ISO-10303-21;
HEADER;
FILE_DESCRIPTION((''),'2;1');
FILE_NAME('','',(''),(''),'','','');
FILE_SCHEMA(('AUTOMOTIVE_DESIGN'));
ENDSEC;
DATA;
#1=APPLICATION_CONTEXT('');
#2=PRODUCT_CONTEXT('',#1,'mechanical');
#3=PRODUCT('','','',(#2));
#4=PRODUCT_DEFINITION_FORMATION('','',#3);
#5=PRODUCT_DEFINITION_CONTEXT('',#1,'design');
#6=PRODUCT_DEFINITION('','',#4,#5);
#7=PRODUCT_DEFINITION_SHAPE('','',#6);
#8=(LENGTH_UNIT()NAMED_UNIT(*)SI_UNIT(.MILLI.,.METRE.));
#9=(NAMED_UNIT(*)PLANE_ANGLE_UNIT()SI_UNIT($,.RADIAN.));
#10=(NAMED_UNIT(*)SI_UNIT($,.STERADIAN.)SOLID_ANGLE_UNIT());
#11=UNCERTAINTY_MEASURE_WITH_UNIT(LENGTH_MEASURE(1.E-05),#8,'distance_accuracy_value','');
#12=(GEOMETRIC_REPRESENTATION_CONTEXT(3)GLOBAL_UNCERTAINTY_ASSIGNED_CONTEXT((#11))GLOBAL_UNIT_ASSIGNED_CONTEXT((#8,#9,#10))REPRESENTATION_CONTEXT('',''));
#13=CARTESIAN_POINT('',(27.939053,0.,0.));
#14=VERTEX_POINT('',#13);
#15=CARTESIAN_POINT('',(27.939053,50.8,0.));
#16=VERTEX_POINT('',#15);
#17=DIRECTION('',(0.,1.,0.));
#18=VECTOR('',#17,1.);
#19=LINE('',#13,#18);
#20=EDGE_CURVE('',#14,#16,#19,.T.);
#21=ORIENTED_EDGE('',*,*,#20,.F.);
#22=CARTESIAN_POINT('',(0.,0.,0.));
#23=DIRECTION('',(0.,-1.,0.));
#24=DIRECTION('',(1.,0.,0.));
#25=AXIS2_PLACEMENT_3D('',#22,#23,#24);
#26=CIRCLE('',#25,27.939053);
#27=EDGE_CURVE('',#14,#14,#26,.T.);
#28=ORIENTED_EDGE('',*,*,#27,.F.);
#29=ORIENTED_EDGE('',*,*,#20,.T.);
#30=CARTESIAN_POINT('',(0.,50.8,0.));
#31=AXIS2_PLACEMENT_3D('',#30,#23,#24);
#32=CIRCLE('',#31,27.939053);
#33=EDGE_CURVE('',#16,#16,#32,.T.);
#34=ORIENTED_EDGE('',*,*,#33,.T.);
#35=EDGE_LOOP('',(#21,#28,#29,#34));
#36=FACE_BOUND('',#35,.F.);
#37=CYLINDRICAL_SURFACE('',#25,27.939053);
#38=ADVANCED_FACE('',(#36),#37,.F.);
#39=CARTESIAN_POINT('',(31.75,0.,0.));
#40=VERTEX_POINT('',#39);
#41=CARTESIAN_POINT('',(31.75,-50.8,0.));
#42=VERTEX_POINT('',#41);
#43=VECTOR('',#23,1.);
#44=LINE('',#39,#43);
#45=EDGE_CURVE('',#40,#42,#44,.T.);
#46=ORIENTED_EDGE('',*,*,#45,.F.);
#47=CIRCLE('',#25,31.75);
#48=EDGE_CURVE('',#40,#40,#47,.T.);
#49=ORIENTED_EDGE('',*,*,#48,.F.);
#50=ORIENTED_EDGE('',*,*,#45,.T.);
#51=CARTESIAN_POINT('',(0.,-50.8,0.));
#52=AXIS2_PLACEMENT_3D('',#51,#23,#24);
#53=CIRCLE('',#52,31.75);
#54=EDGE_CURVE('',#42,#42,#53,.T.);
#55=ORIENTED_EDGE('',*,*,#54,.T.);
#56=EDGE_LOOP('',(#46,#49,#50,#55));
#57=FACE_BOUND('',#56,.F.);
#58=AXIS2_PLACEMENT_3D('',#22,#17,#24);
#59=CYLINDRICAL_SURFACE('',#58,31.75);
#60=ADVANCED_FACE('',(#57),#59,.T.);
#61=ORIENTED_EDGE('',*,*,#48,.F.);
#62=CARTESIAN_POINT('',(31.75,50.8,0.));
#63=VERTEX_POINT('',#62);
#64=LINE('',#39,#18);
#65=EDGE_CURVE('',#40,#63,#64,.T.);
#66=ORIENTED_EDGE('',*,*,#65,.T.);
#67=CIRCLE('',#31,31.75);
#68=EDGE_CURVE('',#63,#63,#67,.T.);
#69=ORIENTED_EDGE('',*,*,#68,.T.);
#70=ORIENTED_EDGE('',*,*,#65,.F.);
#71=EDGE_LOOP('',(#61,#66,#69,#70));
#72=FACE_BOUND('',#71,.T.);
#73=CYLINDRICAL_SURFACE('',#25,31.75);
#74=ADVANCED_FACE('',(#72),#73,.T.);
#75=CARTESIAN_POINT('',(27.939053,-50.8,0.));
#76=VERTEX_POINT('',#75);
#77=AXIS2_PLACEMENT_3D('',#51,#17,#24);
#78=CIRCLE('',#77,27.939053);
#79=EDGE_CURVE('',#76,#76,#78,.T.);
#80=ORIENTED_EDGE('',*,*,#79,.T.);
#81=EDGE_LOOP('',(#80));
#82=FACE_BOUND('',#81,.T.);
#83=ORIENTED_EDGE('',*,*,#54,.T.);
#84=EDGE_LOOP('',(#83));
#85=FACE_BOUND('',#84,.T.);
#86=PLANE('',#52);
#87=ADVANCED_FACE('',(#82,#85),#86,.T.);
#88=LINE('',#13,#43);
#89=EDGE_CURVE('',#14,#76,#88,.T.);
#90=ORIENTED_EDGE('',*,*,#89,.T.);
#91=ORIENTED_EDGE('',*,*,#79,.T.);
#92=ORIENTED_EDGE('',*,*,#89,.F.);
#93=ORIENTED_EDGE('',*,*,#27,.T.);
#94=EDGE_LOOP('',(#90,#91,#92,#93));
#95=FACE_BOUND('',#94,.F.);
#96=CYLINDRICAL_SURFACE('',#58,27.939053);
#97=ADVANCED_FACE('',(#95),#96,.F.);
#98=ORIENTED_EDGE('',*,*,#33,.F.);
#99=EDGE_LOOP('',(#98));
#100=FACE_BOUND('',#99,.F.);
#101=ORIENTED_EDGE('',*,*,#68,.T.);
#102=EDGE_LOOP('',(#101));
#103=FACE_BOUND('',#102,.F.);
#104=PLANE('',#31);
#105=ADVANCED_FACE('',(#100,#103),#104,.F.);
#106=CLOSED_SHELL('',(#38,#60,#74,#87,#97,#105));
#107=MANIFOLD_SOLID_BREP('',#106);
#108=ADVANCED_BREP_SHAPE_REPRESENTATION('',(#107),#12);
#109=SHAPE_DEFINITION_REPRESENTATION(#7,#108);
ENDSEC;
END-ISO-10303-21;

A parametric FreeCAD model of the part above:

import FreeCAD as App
import Part
import Sketcher

V = App.Vector
Q = App.Units.Quantity

doc = App.newDocument("Part")
body = doc.addObject("PartDesign::Body", "Body")

sketch1 = doc.addObject("Sketcher::SketchObject", "Sketch")
body.addObject(sketch1)
sketch1.AttachmentSupport = (doc.XZ_Plane, [""])
sketch1.MapMode = "FlatFace"
sketch1.addGeometry(Part.Circle(V(0, 0, 0), V(0, 0, 1), 32), False)
sketch1.addConstraint([
    Sketcher.Constraint("Coincident", 0, 3, -1, 1),
    Sketcher.Constraint("Diameter", 0, Q("2.5 in")),
])
pad1 = doc.addObject("PartDesign::Pad", "Pad")
body.addObject(pad1)
pad1.Profile = sketch1
pad1.Length = Q("2 in")
pad1.Reversed = True

sketch2 = doc.addObject("Sketcher::SketchObject", "Sketch001")
body.addObject(sketch2)
sketch2.AttachmentSupport = (doc.XZ_Plane, [""])
sketch2.MapMode = "FlatFace"
sketch2.addGeometry(Part.Circle(V(0, 0, 0), V(0, 0, 1), 32), False)
sketch2.addConstraint([
    Sketcher.Constraint("Coincident", 0, 3, -1, 1),
    Sketcher.Constraint("Diameter", 0, Q("2.5 in")),
])
pad2 = doc.addObject("PartDesign::Pad", "Pad001")
body.addObject(pad2)
pad2.Profile = sketch2
pad2.Length = Q("2 in")

sketch3 = doc.addObject("Sketcher::SketchObject", "Sketch002")
body.addObject(sketch3)
sketch3.AttachmentSupport = (doc.XZ_Plane, [""])
sketch3.MapMode = "FlatFace"
sketch3.addGeometry(Part.Circle(V(0, 0, 0), V(0, 0, 1), 28), False)
sketch3.addConstraint([
    Sketcher.Constraint("Coincident", 0, 3, -1, 1),
    Sketcher.Constraint("Diameter", 0, 55.878106),
])
pocket1 = doc.addObject("PartDesign::Pocket", "Pocket")
body.addObject(pocket1)
pocket1.Profile = sketch3
pocket1.Length = Q("2 in")

sketch4 = doc.addObject("Sketcher::SketchObject", "Sketch003")
body.addObject(sketch4)
sketch4.AttachmentSupport = (doc.XZ_Plane, [""])
sketch4.MapMode = "FlatFace"
sketch4.addGeometry(Part.Circle(V(0, 0, 0), V(0, 0, 1), 28), False)
sketch4.addConstraint([
    Sketcher.Constraint("Coincident", 0, 3, -1, 1),
    Sketcher.Constraint("Diameter", 0, 55.878106),
])
pocket2 = doc.addObject("PartDesign::Pocket", "Pocket001")
body.addObject(pocket2)
pocket2.Profile = sketch4
pocket2.Length = Q("2 in")
pocket2.Reversed = True

doc.recompute()
